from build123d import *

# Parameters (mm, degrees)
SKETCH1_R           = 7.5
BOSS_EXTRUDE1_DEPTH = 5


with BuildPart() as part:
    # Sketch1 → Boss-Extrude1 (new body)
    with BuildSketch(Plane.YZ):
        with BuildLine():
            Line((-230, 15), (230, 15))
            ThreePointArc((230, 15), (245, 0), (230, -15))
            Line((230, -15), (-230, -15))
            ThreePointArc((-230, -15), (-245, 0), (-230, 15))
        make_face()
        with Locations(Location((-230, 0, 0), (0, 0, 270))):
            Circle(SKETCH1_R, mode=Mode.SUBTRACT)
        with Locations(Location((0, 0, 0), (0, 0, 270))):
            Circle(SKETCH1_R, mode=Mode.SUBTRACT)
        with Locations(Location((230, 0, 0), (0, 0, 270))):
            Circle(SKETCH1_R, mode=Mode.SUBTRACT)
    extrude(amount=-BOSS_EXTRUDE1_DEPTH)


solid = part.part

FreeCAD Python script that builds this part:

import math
import FreeCAD as App
import Part
import Sketcher

V = App.Vector

doc = App.newDocument("Part")
body = doc.addObject("PartDesign::Body", "Body")

# Sketch on YZ plane
sketch1 = body.newObject("Sketcher::SketchObject", "Sketch")
sketch1.AttachmentSupport = (doc.getObject("YZ_Plane"), [""])
sketch1.MapMode = "FlatFace"
sketch1.addGeometry([
    Part.LineSegment(V(230, 15, 0), V(-230, 15, 0)),  # 0
    Part.ArcOfCircle(Part.Circle(V(-230, 0, 0), V(0, 0, 1), 15), math.radians(90), math.radians(270)),  # 1
    Part.LineSegment(V(-230, -15, 0), V(230, -15, 0)),  # 2
    Part.ArcOfCircle(Part.Circle(V(230, 0, 0), V(0, 0, 1), 15), math.radians(-90), math.radians(90)),  # 3
    Part.Circle(V(230, 0, 0), V(0, 0, 1), 8),  # 4
    Part.Circle(V(0, 0, 0), V(0, 0, 1), 8),  # 5
    Part.Circle(V(-230, 0, 0), V(0, 0, 1), 8),  # 6
], False)
sketch1.addConstraint([
    Sketcher.Constraint("Tangent", 0, 2, 1, 1),
    Sketcher.Constraint("Tangent", 1, 2, 2, 1),
    Sketcher.Constraint("Tangent", 2, 2, 3, 1),
    Sketcher.Constraint("Tangent", 3, 2, 0, 1),
    Sketcher.Constraint("Horizontal", 0),
    Sketcher.Constraint("Horizontal", 2),
    Sketcher.Constraint("Coincident", 5, 3, -1, 1),
    Sketcher.Constraint("Coincident", 4, 3, 3, 3),
    Sketcher.Constraint("Coincident", 6, 3, 1, 3),
    Sketcher.Constraint("Equal", 4, 5),
    Sketcher.Constraint("Equal", 5, 6),
    Sketcher.Constraint("Symmetric", 1, 3, 3, 3, -1, 1),
    Sketcher.Constraint("Diameter", 4, 15.0),
    Sketcher.Constraint("Radius", 1, 15.0),
    Sketcher.Constraint("DistanceX", 0, 2, 0, 1, 460.0),
])
pad1 = body.newObject("PartDesign::Pad", "Pad")
pad1.Profile = sketch1
pad1.Length = 5
pad1.Reversed = True

doc.recompute()
